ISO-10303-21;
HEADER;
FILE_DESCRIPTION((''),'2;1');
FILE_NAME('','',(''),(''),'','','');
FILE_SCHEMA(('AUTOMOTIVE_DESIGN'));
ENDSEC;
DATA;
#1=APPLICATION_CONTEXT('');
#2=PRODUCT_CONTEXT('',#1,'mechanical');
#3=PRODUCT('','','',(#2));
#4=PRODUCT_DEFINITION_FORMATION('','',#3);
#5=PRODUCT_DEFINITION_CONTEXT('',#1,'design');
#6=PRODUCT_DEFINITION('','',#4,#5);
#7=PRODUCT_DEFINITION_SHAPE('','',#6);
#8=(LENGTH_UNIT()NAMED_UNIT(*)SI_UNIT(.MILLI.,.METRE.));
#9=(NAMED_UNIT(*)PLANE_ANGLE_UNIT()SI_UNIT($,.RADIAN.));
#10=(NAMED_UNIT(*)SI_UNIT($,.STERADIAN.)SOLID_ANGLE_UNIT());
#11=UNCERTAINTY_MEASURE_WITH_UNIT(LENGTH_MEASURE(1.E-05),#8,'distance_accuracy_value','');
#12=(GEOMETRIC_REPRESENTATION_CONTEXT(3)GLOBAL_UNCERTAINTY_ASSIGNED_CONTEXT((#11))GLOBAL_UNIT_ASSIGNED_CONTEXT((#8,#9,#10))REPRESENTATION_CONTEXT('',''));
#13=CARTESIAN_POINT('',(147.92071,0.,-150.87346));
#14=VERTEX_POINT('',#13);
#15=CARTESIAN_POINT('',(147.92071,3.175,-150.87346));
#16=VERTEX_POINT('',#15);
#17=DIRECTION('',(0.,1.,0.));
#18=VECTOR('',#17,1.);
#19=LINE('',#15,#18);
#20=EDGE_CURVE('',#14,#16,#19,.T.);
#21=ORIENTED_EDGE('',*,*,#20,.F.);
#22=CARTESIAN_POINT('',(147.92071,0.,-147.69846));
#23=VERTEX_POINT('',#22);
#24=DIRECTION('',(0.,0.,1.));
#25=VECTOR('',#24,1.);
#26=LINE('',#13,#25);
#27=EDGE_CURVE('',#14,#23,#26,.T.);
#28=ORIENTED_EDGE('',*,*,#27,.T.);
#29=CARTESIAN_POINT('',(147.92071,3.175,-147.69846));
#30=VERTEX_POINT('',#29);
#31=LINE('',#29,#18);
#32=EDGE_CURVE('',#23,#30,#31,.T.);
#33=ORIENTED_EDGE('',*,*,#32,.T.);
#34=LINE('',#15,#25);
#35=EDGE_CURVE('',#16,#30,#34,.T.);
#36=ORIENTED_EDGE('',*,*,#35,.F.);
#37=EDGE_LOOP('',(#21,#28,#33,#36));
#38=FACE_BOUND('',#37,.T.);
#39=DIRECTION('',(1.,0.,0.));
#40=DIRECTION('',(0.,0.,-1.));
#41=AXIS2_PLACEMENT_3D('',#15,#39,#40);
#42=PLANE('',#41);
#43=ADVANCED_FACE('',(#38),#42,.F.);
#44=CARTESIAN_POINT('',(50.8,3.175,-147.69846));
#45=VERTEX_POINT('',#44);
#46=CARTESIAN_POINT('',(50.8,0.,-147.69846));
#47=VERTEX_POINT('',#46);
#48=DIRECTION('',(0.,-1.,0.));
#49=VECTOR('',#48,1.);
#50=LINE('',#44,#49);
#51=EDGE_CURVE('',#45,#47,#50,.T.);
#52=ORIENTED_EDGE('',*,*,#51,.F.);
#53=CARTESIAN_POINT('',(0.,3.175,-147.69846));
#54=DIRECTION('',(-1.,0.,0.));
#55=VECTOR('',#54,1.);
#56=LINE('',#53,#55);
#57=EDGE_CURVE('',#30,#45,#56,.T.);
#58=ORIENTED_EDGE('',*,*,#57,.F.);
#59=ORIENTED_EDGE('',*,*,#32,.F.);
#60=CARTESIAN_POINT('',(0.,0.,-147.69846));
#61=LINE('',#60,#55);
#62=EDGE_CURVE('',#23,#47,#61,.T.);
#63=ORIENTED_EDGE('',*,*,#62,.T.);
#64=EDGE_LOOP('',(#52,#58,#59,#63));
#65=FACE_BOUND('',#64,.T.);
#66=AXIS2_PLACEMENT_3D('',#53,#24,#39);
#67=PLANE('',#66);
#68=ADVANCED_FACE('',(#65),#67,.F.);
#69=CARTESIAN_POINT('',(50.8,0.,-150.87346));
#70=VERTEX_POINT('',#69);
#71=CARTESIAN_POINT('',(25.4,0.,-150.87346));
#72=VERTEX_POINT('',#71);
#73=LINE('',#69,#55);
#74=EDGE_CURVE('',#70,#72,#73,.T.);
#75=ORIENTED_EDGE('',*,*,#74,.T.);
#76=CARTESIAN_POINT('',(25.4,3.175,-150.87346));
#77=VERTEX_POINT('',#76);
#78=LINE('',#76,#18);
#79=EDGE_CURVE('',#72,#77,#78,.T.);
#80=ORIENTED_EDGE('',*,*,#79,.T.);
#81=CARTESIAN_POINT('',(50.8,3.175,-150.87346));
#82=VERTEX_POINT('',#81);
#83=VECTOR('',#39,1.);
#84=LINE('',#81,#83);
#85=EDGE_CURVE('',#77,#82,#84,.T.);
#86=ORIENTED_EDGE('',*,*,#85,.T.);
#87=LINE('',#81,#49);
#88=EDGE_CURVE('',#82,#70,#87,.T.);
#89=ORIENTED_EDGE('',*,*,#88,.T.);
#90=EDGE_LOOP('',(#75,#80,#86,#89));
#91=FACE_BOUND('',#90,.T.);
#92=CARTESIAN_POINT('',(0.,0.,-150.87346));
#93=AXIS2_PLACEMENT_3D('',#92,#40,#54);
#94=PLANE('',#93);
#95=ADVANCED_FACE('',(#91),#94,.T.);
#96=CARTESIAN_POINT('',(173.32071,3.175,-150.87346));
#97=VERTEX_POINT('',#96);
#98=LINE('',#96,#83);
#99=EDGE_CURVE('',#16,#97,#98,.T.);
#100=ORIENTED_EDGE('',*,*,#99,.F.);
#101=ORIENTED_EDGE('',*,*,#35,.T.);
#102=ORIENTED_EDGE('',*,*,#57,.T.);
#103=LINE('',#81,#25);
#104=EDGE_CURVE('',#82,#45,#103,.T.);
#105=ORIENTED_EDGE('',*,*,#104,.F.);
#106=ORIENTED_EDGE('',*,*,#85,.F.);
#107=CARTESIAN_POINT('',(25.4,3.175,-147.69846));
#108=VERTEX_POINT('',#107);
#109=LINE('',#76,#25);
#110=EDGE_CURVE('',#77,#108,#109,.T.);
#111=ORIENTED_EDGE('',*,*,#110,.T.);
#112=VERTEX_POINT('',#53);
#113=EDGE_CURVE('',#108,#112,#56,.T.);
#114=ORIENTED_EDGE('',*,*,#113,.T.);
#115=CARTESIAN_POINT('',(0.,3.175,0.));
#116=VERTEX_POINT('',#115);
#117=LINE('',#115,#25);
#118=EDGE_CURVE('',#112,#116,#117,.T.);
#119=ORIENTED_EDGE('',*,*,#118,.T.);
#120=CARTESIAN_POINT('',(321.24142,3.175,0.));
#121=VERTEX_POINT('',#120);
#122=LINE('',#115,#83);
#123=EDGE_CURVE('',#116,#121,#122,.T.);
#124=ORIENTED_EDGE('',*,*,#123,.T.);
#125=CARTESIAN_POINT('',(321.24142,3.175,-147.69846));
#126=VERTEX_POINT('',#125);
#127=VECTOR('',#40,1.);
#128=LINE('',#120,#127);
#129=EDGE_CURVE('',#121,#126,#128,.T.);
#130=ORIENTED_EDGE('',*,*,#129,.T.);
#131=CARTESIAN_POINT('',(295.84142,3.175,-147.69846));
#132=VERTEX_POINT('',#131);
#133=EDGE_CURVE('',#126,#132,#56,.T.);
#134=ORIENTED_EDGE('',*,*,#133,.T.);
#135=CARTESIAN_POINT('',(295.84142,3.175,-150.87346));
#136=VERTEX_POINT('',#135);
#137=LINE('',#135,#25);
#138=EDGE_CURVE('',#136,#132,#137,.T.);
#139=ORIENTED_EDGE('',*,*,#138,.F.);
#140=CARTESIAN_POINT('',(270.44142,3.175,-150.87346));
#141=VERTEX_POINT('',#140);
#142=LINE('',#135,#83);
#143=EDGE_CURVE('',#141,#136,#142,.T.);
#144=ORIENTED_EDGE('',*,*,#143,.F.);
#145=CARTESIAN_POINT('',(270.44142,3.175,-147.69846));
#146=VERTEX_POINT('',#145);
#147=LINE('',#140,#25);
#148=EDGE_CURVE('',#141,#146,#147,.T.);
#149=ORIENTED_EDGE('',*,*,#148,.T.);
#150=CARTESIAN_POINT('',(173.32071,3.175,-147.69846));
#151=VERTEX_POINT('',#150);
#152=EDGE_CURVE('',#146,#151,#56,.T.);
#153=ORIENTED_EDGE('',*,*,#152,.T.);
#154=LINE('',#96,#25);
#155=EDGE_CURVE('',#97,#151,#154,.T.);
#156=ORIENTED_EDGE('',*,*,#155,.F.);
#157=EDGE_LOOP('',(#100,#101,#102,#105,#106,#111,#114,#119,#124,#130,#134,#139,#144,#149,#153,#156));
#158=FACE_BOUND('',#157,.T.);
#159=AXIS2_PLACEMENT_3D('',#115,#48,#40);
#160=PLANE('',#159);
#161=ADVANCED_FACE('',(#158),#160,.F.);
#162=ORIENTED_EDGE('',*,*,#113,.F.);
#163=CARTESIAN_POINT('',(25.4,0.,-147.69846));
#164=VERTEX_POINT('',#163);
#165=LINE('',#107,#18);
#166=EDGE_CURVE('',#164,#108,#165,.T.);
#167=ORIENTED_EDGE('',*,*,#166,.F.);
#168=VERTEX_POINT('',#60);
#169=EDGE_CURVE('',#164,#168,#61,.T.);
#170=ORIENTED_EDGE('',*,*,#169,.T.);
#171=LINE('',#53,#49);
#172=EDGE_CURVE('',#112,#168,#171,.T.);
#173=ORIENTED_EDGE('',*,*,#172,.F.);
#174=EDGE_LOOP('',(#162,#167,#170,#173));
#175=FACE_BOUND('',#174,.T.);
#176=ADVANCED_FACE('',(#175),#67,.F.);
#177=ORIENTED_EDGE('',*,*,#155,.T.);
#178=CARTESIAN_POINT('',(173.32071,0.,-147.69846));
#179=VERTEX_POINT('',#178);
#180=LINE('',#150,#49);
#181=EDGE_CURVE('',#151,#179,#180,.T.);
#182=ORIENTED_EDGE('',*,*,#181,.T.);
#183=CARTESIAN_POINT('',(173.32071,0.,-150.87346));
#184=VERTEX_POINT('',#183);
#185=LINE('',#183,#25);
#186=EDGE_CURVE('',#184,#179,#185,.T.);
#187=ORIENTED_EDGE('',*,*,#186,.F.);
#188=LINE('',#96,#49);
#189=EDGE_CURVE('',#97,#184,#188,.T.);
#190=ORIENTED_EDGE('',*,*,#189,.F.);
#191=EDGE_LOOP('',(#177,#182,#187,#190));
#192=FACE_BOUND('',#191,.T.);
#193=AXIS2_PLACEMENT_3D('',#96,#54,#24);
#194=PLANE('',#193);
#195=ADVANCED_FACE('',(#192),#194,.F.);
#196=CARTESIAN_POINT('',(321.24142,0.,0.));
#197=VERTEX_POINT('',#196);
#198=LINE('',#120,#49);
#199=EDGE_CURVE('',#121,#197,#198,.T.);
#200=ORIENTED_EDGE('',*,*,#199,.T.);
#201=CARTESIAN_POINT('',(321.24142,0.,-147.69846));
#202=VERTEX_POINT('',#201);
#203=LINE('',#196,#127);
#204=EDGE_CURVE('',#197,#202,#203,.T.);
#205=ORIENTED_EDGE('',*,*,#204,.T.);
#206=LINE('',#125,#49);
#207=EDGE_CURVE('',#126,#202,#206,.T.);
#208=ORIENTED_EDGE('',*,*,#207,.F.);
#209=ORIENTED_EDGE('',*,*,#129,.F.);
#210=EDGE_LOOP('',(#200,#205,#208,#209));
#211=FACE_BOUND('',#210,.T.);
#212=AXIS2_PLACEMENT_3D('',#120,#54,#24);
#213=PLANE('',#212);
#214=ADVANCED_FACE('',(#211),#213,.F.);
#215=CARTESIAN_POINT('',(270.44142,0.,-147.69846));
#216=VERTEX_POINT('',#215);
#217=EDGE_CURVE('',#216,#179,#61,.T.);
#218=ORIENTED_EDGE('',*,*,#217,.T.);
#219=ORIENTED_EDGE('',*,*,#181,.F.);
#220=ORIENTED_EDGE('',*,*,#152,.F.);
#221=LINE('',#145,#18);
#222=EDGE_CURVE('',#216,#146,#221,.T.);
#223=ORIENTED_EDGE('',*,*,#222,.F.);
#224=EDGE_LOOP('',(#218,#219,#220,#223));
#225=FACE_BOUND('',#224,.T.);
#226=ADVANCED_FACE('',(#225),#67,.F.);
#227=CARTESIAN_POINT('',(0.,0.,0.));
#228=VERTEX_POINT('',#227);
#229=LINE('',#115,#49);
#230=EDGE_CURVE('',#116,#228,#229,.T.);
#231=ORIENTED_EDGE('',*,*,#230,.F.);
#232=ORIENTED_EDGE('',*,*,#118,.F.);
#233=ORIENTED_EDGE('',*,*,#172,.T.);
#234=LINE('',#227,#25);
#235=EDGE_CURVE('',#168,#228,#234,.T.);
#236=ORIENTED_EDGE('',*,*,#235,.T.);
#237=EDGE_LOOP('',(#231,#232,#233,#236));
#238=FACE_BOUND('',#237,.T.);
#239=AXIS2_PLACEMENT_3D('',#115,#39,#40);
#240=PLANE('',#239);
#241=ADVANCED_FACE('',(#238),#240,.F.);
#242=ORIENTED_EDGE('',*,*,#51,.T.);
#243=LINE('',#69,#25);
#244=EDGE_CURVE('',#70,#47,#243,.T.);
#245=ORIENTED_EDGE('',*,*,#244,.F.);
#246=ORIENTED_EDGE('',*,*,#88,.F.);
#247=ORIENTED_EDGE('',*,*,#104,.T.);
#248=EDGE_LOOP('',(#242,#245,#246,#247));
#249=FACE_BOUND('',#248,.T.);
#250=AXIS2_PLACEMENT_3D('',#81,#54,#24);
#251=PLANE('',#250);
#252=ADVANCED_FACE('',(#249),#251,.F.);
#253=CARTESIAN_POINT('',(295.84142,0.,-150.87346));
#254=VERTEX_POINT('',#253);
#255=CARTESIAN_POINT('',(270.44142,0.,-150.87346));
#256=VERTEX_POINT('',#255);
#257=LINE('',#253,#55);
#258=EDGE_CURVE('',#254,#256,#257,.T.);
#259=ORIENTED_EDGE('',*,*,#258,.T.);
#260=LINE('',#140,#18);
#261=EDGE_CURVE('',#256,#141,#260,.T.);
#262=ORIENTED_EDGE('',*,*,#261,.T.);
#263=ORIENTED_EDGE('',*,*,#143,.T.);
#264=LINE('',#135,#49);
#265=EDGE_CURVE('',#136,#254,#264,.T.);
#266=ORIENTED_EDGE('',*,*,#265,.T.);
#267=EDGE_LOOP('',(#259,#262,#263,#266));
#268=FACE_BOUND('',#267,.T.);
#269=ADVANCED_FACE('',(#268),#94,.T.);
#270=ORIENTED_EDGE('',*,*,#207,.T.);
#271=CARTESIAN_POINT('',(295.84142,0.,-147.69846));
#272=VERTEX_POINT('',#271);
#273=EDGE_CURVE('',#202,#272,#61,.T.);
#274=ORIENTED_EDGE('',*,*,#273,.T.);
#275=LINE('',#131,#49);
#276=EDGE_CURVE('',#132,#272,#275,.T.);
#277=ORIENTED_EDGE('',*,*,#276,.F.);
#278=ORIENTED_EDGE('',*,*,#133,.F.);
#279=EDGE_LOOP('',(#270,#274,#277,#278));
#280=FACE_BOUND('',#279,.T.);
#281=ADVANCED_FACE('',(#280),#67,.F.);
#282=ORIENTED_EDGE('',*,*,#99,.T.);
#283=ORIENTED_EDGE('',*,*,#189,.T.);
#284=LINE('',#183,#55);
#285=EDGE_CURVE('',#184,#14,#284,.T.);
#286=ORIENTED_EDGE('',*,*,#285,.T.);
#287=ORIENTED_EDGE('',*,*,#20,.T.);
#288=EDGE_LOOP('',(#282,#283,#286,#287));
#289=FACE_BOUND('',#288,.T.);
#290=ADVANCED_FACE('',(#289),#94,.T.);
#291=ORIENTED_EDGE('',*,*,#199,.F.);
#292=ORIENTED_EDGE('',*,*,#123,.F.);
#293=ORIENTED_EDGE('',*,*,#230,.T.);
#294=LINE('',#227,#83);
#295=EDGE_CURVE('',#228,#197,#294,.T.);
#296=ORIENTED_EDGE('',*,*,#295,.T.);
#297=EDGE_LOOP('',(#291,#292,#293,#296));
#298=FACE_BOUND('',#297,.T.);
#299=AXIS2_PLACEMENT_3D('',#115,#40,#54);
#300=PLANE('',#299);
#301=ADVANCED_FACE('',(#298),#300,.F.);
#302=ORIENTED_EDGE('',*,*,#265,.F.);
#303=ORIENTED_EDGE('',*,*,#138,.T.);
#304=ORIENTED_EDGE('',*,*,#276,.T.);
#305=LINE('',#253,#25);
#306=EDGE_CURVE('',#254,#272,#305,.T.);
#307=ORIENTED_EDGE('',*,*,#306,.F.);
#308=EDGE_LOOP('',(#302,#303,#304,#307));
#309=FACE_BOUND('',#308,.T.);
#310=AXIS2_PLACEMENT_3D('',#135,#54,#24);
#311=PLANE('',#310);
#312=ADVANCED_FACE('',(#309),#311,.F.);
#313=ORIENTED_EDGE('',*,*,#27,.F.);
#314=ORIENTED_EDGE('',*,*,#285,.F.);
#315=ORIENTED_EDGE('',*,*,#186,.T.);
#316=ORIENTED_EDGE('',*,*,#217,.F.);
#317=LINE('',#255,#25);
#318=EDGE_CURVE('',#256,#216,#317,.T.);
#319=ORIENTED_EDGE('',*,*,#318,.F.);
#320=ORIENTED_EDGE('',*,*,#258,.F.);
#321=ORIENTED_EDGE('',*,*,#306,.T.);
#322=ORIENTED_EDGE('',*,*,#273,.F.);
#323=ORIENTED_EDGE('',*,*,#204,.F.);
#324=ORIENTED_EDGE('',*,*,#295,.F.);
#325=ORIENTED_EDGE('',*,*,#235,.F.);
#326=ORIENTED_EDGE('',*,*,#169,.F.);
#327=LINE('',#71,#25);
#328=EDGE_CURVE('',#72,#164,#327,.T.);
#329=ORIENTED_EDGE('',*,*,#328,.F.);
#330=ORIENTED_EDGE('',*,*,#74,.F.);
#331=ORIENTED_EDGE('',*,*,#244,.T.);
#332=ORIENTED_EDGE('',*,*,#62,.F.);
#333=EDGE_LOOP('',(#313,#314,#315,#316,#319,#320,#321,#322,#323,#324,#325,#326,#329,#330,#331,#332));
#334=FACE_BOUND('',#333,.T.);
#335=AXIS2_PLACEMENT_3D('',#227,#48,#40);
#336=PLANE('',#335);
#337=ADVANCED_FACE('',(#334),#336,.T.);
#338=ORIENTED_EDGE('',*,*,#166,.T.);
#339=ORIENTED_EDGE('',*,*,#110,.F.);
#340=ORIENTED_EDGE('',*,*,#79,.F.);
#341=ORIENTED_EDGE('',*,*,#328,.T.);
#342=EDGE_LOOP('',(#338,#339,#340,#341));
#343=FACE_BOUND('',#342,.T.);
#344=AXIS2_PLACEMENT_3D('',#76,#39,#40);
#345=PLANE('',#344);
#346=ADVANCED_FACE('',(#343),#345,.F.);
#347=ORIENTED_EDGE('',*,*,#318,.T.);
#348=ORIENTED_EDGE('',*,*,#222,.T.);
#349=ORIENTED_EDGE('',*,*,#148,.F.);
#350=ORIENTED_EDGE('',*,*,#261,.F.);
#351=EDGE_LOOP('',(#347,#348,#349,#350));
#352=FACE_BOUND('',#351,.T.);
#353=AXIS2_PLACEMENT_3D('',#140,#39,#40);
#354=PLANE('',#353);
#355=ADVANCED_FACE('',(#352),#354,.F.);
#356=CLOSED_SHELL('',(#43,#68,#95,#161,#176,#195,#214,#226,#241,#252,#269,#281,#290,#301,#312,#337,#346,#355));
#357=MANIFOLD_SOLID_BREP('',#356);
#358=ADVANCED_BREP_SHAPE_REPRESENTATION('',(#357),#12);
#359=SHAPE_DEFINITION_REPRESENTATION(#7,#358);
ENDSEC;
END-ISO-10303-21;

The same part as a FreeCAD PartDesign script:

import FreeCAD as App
import Part
import Sketcher
from FreeCAD import Vector
Q = App.Units.Quantity

doc = App.newDocument("Part")
body = doc.addObject("PartDesign::Body", "Body")

sketch1 = body.newObject("Sketcher::SketchObject", "Sketch")
sketch1.AttachmentSupport = (doc.getObject("XZ_Plane"), [""])
sketch1.MapMode = "FlatFace"
sketch1.addGeometry(Part.LineSegment(Vector(0, -147.69846, 0), Vector(0, 0, 0)), False)
sketch1.addGeometry(Part.LineSegment(Vector(0, 0, 0), Vector(321.24142, 0, 0)), False)
sketch1.addGeometry(Part.LineSegment(Vector(321.24142, 0, 0), Vector(321.24142, -147.69846, 0)), False)
sketch1.addGeometry(Part.LineSegment(Vector(321.24142, -147.69846, 0), Vector(0, -147.69846, 0)), False)
sketch1.addConstraint(Sketcher.Constraint("Coincident", 0, 2, 1, 1))
sketch1.addConstraint(Sketcher.Constraint("Coincident", 1, 2, 2, 1))
sketch1.addConstraint(Sketcher.Constraint("Coincident", 2, 2, 3, 1))
sketch1.addConstraint(Sketcher.Constraint("Coincident", 3, 2, 0, 1))
sketch1.addConstraint(Sketcher.Constraint("Vertical", 0))
sketch1.addConstraint(Sketcher.Constraint("Horizontal", 1))
sketch1.addConstraint(Sketcher.Constraint("Vertical", 2))
sketch1.addConstraint(Sketcher.Constraint("Horizontal", 3))
sketch1.addConstraint(Sketcher.Constraint("Coincident", 0, 2, -1, 1))
sketch1.addConstraint(Sketcher.Constraint("DistanceX", 1, 1, 1, 2, Q("12.6473 in")))
sketch1.addConstraint(Sketcher.Constraint("DistanceY", 0, 1, 0, 2, Q("5.8149 in")))
pad1 = body.newObject("PartDesign::Pad", "Pad")
pad1.Profile = sketch1
pad1.Length = Q("0.125 in")
pad1.Reversed = True

sketch2 = body.newObject("Sketcher::SketchObject", "Sketch001")
sketch2.AttachmentSupport = (doc.getObject("XY_Plane"), [""])
sketch2.MapMode = "FlatFace"
sketch2.AttachmentOffset = App.Placement(Vector(0, 0, -5.8149 * 25.4), App.Rotation())
sketch2.addGeometry(Part.LineSegment(Vector(295.84142, 3.175, 0), Vector(295.84142, 0, 0)), False)
sketch2.addGeometry(Part.LineSegment(Vector(295.84142, 0, 0), Vector(270.44142, 0, 0)), False)
sketch2.addGeometry(Part.LineSegment(Vector(270.44142, 0, 0), Vector(270.44142, 3.175, 0)), False)
sketch2.addGeometry(Part.LineSegment(Vector(270.44142, 3.175, 0), Vector(295.84142, 3.175, 0)), False)
sketch2.addGeometry(Part.LineSegment(Vector(173.32071, 3.175, 0), Vector(173.32071, 0, 0)), False)
sketch2.addGeometry(Part.LineSegment(Vector(173.32071, 0, 0), Vector(147.92071, 0, 0)), False)
sketch2.addGeometry(Part.LineSegment(Vector(147.92071, 0, 0), Vector(147.92071, 3.175, 0)), False)
sketch2.addGeometry(Part.LineSegment(Vector(147.92071, 3.175, 0), Vector(173.32071, 3.175, 0)), False)
sketch2.addGeometry(Part.LineSegment(Vector(50.8, 3.175, 0), Vector(50.8, 0, 0)), False)
sketch2.addGeometry(Part.LineSegment(Vector(50.8, 0, 0), Vector(25.4, 0, 0)), False)
sketch2.addGeometry(Part.LineSegment(Vector(25.4, 0, 0), Vector(25.4, 3.175, 0)), False)
sketch2.addGeometry(Part.LineSegment(Vector(25.4, 3.175, 0), Vector(50.8, 3.175, 0)), False)
sketch2.addConstraint(Sketcher.Constraint("Coincident", 0, 2, 1, 1))
sketch2.addConstraint(Sketcher.Constraint("Coincident", 1, 2, 2, 1))
sketch2.addConstraint(Sketcher.Constraint("Coincident", 2, 2, 3, 1))
sketch2.addConstraint(Sketcher.Constraint("Coincident", 3, 2, 0, 1))
sketch2.addConstraint(Sketcher.Constraint("Coincident", 4, 2, 5, 1))
sketch2.addConstraint(Sketcher.Constraint("Coincident", 5, 2, 6, 1))
sketch2.addConstraint(Sketcher.Constraint("Coincident", 6, 2, 7, 1))
sketch2.addConstraint(Sketcher.Constraint("Coincident", 7, 2, 4, 1))
sketch2.addConstraint(Sketcher.Constraint("Coincident", 8, 2, 9, 1))
sketch2.addConstraint(Sketcher.Constraint("Coincident", 9, 2, 10, 1))
sketch2.addConstraint(Sketcher.Constraint("Coincident", 10, 2, 11, 1))
sketch2.addConstraint(Sketcher.Constraint("Coincident", 11, 2, 8, 1))
sketch2.addConstraint(Sketcher.Constraint("Vertical", 0))
sketch2.addConstraint(Sketcher.Constraint("Horizontal", 1))
sketch2.addConstraint(Sketcher.Constraint("Vertical", 2))
sketch2.addConstraint(Sketcher.Constraint("Horizontal", 3))
sketch2.addConstraint(Sketcher.Constraint("Vertical", 4))
sketch2.addConstraint(Sketcher.Constraint("Horizontal", 5))
sketch2.addConstraint(Sketcher.Constraint("Vertical", 6))
sketch2.addConstraint(Sketcher.Constraint("Horizontal", 7))
sketch2.addConstraint(Sketcher.Constraint("Vertical", 8))
sketch2.addConstraint(Sketcher.Constraint("Horizontal", 9))
sketch2.addConstraint(Sketcher.Constraint("Vertical", 10))
sketch2.addConstraint(Sketcher.Constraint("Horizontal", 11))
sketch2.addConstraint(Sketcher.Constraint("PointOnObject", 0, 2, -1))
sketch2.addConstraint(Sketcher.Constraint("PointOnObject", 4, 2, -1))
sketch2.addConstraint(Sketcher.Constraint("PointOnObject", 8, 2, -1))
sketch2.addConstraint(Sketcher.Constraint("Horizontal", 3, 2, 6, 2))
sketch2.addConstraint(Sketcher.Constraint("Horizontal", 7, 2, 10, 2))
sketch2.addConstraint(Sketcher.Constraint("Equal", 3, 5))
sketch2.addConstraint(Sketcher.Constraint("Equal", 7, 9))
sketch2.addConstraint(Sketcher.Constraint("DistanceX", 1, 2, 1, 1, Q("1 in")))
sketch2.addConstraint(Sketcher.Constraint("DistanceX", -1, 1, 8, 2, Q("2 in")))
sketch2.addConstraint(Sketcher.Constraint("DistanceY", 0, 2, 0, 1, Q("0.125 in")))
sketch2.addConstraint(Sketcher.Constraint("DistanceX", -1, 1, 0, 2, Q("11.6473 in")))
sketch2.addConstraint(Sketcher.Constraint("DistanceX", -1, 1, 4, 2, 173.32071))
pad2 = body.newObject("PartDesign::Pad", "Pad001")
pad2.Profile = sketch2
pad2.Length = Q("0.125 in")
pad2.Reversed = True

doc.recompute()
